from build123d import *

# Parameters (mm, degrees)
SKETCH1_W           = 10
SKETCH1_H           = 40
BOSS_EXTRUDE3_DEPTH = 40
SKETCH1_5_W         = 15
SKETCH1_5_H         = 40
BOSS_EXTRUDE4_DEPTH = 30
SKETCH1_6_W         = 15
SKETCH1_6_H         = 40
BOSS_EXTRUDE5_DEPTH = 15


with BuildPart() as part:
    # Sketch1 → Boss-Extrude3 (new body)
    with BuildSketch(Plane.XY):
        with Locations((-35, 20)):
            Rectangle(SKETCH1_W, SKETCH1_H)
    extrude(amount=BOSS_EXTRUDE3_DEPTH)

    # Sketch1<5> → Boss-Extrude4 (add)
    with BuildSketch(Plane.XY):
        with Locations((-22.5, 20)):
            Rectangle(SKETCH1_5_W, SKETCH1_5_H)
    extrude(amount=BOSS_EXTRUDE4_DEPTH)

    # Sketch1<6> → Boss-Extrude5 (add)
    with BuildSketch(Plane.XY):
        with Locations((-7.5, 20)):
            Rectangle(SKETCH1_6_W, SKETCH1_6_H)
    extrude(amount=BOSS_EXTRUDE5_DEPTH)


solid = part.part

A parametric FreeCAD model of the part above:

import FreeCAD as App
import Part
import Sketcher

V = App.Vector

doc = App.newDocument("Part")
body = doc.addObject("PartDesign::Body", "Body")

sketch1 = body.newObject("Sketcher::SketchObject", "Sketch")
sketch1.AttachmentSupport = (doc.getObject("XY_Plane"), [""])
sketch1.MapMode = "FlatFace"
sketch1.addGeometry([
    Part.LineSegment(V(-40, 40, 0), V(-40, 0, 0)),
    Part.LineSegment(V(-40, 0, 0), V(-30, 0, 0)),
    Part.LineSegment(V(-30, 0, 0), V(-30, 40, 0)),
    Part.LineSegment(V(-30, 40, 0), V(-40, 40, 0)),
], False)
sketch1.addConstraint([
    Sketcher.Constraint("Coincident", 0, 2, 1, 1),
    Sketcher.Constraint("Coincident", 1, 2, 2, 1),
    Sketcher.Constraint("Coincident", 2, 2, 3, 1),
    Sketcher.Constraint("Coincident", 3, 2, 0, 1),
    Sketcher.Constraint("Vertical", 0),
    Sketcher.Constraint("Horizontal", 1),
    Sketcher.Constraint("Vertical", 2),
    Sketcher.Constraint("Horizontal", 3),
    Sketcher.Constraint("PointOnObject", 0, 2, -1),
    Sketcher.Constraint("DistanceX", 1, 1, 1, 2, 10.0),
    Sketcher.Constraint("DistanceY", 0, 2, 0, 1, 40.0),
    Sketcher.Constraint("DistanceX", 0, 2, -1, 1, 40.0),
])
pad1 = body.newObject("PartDesign::Pad", "Pad")
pad1.Profile = sketch1
pad1.Length = 40

sketch2 = body.newObject("Sketcher::SketchObject", "Sketch001")
sketch2.AttachmentSupport = (doc.getObject("XY_Plane"), [""])
sketch2.MapMode = "FlatFace"
sketch2.addGeometry([
    Part.LineSegment(V(-30, 40, 0), V(-30, 0, 0)),
    Part.LineSegment(V(-30, 0, 0), V(-15, 0, 0)),
    Part.LineSegment(V(-15, 0, 0), V(-15, 40, 0)),
    Part.LineSegment(V(-15, 40, 0), V(-30, 40, 0)),
], False)
sketch2.addConstraint([
    Sketcher.Constraint("Coincident", 0, 2, 1, 1),
    Sketcher.Constraint("Coincident", 1, 2, 2, 1),
    Sketcher.Constraint("Coincident", 2, 2, 3, 1),
    Sketcher.Constraint("Coincident", 3, 2, 0, 1),
    Sketcher.Constraint("Vertical", 0),
    Sketcher.Constraint("Horizontal", 1),
    Sketcher.Constraint("Vertical", 2),
    Sketcher.Constraint("Horizontal", 3),
    Sketcher.Constraint("PointOnObject", 0, 2, -1),
    Sketcher.Constraint("DistanceX", 1, 1, 1, 2, 15.0),
    Sketcher.Constraint("DistanceY", 0, 2, 0, 1, 40.0),
    Sketcher.Constraint("DistanceX", 0, 2, -1, 1, 30.0),
])
pad2 = body.newObject("PartDesign::Pad", "Pad001")
pad2.Profile = sketch2
pad2.Length = 30

sketch3 = body.newObject("Sketcher::SketchObject", "Sketch002")
sketch3.AttachmentSupport = (doc.getObject("XY_Plane"), [""])
sketch3.MapMode = "FlatFace"
sketch3.addGeometry([
    Part.LineSegment(V(-15, 40, 0), V(-15, 0, 0)),
    Part.LineSegment(V(-15, 0, 0), V(0, 0, 0)),
    Part.LineSegment(V(0, 0, 0), V(0, 40, 0)),
    Part.LineSegment(V(0, 40, 0), V(-15, 40, 0)),
], False)
sketch3.addConstraint([
    Sketcher.Constraint("Coincident", 0, 2, 1, 1),
    Sketcher.Constraint("Coincident", 1, 2, 2, 1),
    Sketcher.Constraint("Coincident", 2, 2, 3, 1),
    Sketcher.Constraint("Coincident", 3, 2, 0, 1),
    Sketcher.Constraint("Vertical", 0),
    Sketcher.Constraint("Horizontal", 1),
    Sketcher.Constraint("Vertical", 2),
    Sketcher.Constraint("Horizontal", 3),
    Sketcher.Constraint("Coincident", 1, 2, -1, 1),
    Sketcher.Constraint("DistanceX", 1, 1, 1, 2, 15.0),
    Sketcher.Constraint("DistanceY", 0, 2, 0, 1, 40.0),
])
pad3 = body.newObject("PartDesign::Pad", "Pad002")
pad3.Profile = sketch3
pad3.Length = 15

doc.recompute()
